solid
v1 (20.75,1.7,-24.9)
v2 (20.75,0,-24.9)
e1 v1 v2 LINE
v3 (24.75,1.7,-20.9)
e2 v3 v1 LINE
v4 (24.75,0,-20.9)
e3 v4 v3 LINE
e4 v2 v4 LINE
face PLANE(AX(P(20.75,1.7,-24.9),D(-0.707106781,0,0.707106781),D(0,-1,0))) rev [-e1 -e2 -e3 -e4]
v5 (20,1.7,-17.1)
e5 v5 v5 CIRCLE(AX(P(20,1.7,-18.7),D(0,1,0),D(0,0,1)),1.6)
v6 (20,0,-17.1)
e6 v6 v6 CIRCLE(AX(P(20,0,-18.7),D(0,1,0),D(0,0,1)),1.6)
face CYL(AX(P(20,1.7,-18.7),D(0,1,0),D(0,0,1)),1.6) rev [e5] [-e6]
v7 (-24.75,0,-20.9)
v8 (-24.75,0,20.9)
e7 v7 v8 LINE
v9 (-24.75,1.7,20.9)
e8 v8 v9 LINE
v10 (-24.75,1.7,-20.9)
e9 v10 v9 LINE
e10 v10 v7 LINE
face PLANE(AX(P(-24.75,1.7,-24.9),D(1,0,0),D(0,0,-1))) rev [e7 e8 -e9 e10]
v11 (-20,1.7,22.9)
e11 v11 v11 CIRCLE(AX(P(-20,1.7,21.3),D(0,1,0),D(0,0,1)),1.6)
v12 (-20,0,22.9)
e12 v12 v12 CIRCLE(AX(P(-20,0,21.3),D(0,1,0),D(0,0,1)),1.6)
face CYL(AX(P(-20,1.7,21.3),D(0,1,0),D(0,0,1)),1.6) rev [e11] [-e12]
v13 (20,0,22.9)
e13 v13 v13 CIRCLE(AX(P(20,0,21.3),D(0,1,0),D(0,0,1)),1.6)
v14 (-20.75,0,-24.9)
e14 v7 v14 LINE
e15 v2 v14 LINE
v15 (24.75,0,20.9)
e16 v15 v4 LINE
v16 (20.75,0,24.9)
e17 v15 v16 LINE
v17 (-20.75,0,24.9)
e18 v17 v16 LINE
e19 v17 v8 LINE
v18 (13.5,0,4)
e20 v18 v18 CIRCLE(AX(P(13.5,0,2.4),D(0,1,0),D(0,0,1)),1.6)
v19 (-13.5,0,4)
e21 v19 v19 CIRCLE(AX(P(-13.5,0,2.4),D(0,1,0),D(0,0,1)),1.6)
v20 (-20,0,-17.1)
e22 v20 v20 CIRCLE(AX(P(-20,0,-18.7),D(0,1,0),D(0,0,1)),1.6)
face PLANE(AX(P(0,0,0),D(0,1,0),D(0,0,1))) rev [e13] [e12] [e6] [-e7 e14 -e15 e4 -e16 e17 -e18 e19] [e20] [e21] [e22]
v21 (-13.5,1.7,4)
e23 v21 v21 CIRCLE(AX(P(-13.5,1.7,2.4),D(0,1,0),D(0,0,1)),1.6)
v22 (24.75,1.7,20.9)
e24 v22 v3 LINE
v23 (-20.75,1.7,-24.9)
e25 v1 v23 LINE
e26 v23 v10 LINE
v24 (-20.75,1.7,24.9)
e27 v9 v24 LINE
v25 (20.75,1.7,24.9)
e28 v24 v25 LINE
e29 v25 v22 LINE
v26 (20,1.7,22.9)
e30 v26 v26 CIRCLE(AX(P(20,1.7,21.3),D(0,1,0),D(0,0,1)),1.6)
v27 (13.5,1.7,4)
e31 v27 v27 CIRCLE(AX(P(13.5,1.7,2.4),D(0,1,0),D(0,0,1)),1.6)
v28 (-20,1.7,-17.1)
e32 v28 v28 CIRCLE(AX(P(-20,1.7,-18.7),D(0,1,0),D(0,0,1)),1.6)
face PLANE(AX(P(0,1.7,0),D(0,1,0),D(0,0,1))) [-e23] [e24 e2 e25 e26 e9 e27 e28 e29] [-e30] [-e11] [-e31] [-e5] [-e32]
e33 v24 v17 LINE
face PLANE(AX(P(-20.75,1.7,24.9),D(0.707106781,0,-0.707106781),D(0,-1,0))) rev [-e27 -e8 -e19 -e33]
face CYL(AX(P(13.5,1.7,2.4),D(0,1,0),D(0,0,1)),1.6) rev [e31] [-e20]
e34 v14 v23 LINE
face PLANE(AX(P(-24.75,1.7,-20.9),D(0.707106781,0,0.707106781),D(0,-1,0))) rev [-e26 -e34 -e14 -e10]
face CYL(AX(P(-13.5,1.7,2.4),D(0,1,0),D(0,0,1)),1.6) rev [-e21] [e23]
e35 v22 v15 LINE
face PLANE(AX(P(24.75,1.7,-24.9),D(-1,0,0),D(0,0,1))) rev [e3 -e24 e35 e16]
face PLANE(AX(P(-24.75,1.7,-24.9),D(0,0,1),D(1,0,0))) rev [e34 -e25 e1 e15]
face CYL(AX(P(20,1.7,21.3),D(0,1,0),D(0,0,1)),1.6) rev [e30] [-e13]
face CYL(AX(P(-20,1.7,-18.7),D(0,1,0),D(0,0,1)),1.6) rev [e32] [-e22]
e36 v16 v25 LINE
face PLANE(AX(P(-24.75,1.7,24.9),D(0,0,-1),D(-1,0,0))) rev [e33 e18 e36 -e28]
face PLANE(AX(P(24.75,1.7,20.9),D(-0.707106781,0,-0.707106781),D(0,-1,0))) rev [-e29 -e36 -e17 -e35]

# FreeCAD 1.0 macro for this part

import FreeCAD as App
import Part
import Sketcher


def edges_at(feature, points):
    """Names of the edges that pass closest to the given points."""
    edges = feature.Shape.Edges
    near = lambda p: min(range(len(edges)), key=lambda i: edges[i].distToShape(Part.Vertex(*p))[0])
    return sorted({f"Edge{near(p) + 1}" for p in points})


def add_polygon(sketch, points):
    """Adds a closed chain of lines whose ends are joined by coincident constraints."""
    first, n = sketch.GeometryCount, len(points)
    for a, b in zip(points, points[1:] + points[:1]):
        sketch.addGeometry(Part.LineSegment(App.Vector(*a, 0), App.Vector(*b, 0)), False)
    for i in range(n):
        sketch.addConstraint(Sketcher.Constraint("Coincident", first + i, 2, first + (i + 1) % n, 1))

doc = App.newDocument("Part")
body = doc.addObject("PartDesign::Body", "Body")

# Sketch on XZ plane
sketch1 = body.newObject("Sketcher::SketchObject", "Sketch")
sketch1.AttachmentSupport = (doc.getObject("XZ_Plane"), [""])
sketch1.MapMode = "FlatFace"
add_polygon(sketch1, [(-24.75, -24.9), (-24.75, 24.9), (24.75, 24.9), (24.75, -24.9)])  # lines 0-3
sketch1.addConstraint([
    Sketcher.Constraint("Vertical", 0),
    Sketcher.Constraint("Horizontal", 1),
    Sketcher.Constraint("Vertical", 2),
    Sketcher.Constraint("Horizontal", 3),
    Sketcher.Constraint("Symmetric", 0, 2, 2, 2, -1, 1),
    Sketcher.Constraint("DistanceX", 1, 1, 1, 2, 49.5),
    Sketcher.Constraint("DistanceY", 0, 1, 0, 2, 49.8),
])
pad1 = body.newObject("PartDesign::Pad", "Pad")
pad1.Profile = sketch1
pad1.Length = 1.7
pad1.Reversed = True

# Sketch on XZ plane
sketch2 = body.newObject("Sketcher::SketchObject", "Sketch001")
sketch2.AttachmentSupport = (doc.getObject("XZ_Plane"), [""])
sketch2.MapMode = "FlatFace"
sketch2.AttachmentOffset = App.Placement(App.Vector(0, 0, -1.7), App.Rotation())
sketch2.addGeometry(Part.Circle(App.Vector(-20, -18.7, 0), App.Vector(0, 0, 1), 1.6), False)
sketch2.addConstraint([
    Sketcher.Constraint("Diameter", 0, 3.2),
    Sketcher.Constraint("DistanceX", 0, 3, -1, 1, 20.0),
    Sketcher.Constraint("DistanceY", 0, 3, -1, 1, 18.7),
])
doc.recompute()
hole = body.newObject("PartDesign::Hole", "Hole")
hole.Profile = sketch2
hole.ThreadType = "None"
hole.Diameter = 3.2
hole.DepthType = "ThroughAll"
hole.Reversed = True
doc.recompute()

mirrored = body.newObject("PartDesign::Mirrored", "Mirrored")
mirrored.Originals = [hole]
mirrored.MirrorPlane = (doc.getObject("YZ_Plane"), [""])
body.Tip = mirrored
doc.recompute()

linearpattern = body.newObject("PartDesign::LinearPattern", "LinearPattern")
linearpattern.Originals = [hole]
linearpattern.Direction = (doc.getObject("Z_Axis"), [""])
linearpattern.Mode = "offset"
linearpattern.Offset = 40
linearpattern.Occurrences = 2
body.Tip = linearpattern

# Sketch on XZ plane
sketch3 = body.newObject("Sketcher::SketchObject", "Sketch002")
sketch3.AttachmentSupport = (doc.getObject("XZ_Plane"), [""])
sketch3.MapMode = "FlatFace"
sketch3.AttachmentOffset = App.Placement(App.Vector(0, 0, -1.7), App.Rotation())
sketch3.addGeometry(Part.Circle(App.Vector(20, 21.3, 0), App.Vector(0, 0, 1), 1.6), False)
sketch3.addConstraint([
    Sketcher.Constraint("Diameter", 0, 3.2),
    Sketcher.Constraint("DistanceX", -1, 1, 0, 3, 20.0),
    Sketcher.Constraint("DistanceY", -1, 1, 0, 3, 21.3),
])
doc.recompute()
hole2 = body.newObject("PartDesign::Hole", "Hole001")
hole2.Profile = sketch3
hole2.ThreadType = "None"
hole2.Diameter = 3.2
hole2.DepthType = "ThroughAll"
hole2.Reversed = True

# Sketch on XZ plane
sketch4 = body.newObject("Sketcher::SketchObject", "Sketch003")
sketch4.AttachmentSupport = (doc.getObject("XZ_Plane"), [""])
sketch4.MapMode = "FlatFace"
sketch4.AttachmentOffset = App.Placement(App.Vector(0, 0, -1.7), App.Rotation())
sketch4.addGeometry(Part.Circle(App.Vector(13.5, 2.4, 0), App.Vector(0, 0, 1), 1.6), False)
sketch4.addConstraint([
    Sketcher.Constraint("Diameter", 0, 3.2),
    Sketcher.Constraint("DistanceX", -1, 1, 0, 3, 13.5),
    Sketcher.Constraint("DistanceY", -1, 1, 0, 3, 2.4),
])
doc.recompute()
hole3 = body.newObject("PartDesign::Hole", "Hole002")
hole3.Profile = sketch4
hole3.ThreadType = "None"
hole3.Diameter = 3.2
hole3.DepthType = "ThroughAll"
hole3.Reversed = True
doc.recompute()

mirrored2 = body.newObject("PartDesign::Mirrored", "Mirrored001")
mirrored2.Originals = [hole3]
mirrored2.MirrorPlane = (doc.getObject("YZ_Plane"), [""])
body.Tip = mirrored2
doc.recompute()

chamfer = body.newObject("PartDesign::Chamfer", "Chamfer")
chamfer.Base = (mirrored2, edges_at(mirrored2, [
    (24.75, 0.85, 24.9),
    (-24.75, 0.85, 24.9),
    (-24.75, 0.85, -24.9),
    (24.75, 0.85, -24.9),
]))
chamfer.Size = 4

doc.recompute()
